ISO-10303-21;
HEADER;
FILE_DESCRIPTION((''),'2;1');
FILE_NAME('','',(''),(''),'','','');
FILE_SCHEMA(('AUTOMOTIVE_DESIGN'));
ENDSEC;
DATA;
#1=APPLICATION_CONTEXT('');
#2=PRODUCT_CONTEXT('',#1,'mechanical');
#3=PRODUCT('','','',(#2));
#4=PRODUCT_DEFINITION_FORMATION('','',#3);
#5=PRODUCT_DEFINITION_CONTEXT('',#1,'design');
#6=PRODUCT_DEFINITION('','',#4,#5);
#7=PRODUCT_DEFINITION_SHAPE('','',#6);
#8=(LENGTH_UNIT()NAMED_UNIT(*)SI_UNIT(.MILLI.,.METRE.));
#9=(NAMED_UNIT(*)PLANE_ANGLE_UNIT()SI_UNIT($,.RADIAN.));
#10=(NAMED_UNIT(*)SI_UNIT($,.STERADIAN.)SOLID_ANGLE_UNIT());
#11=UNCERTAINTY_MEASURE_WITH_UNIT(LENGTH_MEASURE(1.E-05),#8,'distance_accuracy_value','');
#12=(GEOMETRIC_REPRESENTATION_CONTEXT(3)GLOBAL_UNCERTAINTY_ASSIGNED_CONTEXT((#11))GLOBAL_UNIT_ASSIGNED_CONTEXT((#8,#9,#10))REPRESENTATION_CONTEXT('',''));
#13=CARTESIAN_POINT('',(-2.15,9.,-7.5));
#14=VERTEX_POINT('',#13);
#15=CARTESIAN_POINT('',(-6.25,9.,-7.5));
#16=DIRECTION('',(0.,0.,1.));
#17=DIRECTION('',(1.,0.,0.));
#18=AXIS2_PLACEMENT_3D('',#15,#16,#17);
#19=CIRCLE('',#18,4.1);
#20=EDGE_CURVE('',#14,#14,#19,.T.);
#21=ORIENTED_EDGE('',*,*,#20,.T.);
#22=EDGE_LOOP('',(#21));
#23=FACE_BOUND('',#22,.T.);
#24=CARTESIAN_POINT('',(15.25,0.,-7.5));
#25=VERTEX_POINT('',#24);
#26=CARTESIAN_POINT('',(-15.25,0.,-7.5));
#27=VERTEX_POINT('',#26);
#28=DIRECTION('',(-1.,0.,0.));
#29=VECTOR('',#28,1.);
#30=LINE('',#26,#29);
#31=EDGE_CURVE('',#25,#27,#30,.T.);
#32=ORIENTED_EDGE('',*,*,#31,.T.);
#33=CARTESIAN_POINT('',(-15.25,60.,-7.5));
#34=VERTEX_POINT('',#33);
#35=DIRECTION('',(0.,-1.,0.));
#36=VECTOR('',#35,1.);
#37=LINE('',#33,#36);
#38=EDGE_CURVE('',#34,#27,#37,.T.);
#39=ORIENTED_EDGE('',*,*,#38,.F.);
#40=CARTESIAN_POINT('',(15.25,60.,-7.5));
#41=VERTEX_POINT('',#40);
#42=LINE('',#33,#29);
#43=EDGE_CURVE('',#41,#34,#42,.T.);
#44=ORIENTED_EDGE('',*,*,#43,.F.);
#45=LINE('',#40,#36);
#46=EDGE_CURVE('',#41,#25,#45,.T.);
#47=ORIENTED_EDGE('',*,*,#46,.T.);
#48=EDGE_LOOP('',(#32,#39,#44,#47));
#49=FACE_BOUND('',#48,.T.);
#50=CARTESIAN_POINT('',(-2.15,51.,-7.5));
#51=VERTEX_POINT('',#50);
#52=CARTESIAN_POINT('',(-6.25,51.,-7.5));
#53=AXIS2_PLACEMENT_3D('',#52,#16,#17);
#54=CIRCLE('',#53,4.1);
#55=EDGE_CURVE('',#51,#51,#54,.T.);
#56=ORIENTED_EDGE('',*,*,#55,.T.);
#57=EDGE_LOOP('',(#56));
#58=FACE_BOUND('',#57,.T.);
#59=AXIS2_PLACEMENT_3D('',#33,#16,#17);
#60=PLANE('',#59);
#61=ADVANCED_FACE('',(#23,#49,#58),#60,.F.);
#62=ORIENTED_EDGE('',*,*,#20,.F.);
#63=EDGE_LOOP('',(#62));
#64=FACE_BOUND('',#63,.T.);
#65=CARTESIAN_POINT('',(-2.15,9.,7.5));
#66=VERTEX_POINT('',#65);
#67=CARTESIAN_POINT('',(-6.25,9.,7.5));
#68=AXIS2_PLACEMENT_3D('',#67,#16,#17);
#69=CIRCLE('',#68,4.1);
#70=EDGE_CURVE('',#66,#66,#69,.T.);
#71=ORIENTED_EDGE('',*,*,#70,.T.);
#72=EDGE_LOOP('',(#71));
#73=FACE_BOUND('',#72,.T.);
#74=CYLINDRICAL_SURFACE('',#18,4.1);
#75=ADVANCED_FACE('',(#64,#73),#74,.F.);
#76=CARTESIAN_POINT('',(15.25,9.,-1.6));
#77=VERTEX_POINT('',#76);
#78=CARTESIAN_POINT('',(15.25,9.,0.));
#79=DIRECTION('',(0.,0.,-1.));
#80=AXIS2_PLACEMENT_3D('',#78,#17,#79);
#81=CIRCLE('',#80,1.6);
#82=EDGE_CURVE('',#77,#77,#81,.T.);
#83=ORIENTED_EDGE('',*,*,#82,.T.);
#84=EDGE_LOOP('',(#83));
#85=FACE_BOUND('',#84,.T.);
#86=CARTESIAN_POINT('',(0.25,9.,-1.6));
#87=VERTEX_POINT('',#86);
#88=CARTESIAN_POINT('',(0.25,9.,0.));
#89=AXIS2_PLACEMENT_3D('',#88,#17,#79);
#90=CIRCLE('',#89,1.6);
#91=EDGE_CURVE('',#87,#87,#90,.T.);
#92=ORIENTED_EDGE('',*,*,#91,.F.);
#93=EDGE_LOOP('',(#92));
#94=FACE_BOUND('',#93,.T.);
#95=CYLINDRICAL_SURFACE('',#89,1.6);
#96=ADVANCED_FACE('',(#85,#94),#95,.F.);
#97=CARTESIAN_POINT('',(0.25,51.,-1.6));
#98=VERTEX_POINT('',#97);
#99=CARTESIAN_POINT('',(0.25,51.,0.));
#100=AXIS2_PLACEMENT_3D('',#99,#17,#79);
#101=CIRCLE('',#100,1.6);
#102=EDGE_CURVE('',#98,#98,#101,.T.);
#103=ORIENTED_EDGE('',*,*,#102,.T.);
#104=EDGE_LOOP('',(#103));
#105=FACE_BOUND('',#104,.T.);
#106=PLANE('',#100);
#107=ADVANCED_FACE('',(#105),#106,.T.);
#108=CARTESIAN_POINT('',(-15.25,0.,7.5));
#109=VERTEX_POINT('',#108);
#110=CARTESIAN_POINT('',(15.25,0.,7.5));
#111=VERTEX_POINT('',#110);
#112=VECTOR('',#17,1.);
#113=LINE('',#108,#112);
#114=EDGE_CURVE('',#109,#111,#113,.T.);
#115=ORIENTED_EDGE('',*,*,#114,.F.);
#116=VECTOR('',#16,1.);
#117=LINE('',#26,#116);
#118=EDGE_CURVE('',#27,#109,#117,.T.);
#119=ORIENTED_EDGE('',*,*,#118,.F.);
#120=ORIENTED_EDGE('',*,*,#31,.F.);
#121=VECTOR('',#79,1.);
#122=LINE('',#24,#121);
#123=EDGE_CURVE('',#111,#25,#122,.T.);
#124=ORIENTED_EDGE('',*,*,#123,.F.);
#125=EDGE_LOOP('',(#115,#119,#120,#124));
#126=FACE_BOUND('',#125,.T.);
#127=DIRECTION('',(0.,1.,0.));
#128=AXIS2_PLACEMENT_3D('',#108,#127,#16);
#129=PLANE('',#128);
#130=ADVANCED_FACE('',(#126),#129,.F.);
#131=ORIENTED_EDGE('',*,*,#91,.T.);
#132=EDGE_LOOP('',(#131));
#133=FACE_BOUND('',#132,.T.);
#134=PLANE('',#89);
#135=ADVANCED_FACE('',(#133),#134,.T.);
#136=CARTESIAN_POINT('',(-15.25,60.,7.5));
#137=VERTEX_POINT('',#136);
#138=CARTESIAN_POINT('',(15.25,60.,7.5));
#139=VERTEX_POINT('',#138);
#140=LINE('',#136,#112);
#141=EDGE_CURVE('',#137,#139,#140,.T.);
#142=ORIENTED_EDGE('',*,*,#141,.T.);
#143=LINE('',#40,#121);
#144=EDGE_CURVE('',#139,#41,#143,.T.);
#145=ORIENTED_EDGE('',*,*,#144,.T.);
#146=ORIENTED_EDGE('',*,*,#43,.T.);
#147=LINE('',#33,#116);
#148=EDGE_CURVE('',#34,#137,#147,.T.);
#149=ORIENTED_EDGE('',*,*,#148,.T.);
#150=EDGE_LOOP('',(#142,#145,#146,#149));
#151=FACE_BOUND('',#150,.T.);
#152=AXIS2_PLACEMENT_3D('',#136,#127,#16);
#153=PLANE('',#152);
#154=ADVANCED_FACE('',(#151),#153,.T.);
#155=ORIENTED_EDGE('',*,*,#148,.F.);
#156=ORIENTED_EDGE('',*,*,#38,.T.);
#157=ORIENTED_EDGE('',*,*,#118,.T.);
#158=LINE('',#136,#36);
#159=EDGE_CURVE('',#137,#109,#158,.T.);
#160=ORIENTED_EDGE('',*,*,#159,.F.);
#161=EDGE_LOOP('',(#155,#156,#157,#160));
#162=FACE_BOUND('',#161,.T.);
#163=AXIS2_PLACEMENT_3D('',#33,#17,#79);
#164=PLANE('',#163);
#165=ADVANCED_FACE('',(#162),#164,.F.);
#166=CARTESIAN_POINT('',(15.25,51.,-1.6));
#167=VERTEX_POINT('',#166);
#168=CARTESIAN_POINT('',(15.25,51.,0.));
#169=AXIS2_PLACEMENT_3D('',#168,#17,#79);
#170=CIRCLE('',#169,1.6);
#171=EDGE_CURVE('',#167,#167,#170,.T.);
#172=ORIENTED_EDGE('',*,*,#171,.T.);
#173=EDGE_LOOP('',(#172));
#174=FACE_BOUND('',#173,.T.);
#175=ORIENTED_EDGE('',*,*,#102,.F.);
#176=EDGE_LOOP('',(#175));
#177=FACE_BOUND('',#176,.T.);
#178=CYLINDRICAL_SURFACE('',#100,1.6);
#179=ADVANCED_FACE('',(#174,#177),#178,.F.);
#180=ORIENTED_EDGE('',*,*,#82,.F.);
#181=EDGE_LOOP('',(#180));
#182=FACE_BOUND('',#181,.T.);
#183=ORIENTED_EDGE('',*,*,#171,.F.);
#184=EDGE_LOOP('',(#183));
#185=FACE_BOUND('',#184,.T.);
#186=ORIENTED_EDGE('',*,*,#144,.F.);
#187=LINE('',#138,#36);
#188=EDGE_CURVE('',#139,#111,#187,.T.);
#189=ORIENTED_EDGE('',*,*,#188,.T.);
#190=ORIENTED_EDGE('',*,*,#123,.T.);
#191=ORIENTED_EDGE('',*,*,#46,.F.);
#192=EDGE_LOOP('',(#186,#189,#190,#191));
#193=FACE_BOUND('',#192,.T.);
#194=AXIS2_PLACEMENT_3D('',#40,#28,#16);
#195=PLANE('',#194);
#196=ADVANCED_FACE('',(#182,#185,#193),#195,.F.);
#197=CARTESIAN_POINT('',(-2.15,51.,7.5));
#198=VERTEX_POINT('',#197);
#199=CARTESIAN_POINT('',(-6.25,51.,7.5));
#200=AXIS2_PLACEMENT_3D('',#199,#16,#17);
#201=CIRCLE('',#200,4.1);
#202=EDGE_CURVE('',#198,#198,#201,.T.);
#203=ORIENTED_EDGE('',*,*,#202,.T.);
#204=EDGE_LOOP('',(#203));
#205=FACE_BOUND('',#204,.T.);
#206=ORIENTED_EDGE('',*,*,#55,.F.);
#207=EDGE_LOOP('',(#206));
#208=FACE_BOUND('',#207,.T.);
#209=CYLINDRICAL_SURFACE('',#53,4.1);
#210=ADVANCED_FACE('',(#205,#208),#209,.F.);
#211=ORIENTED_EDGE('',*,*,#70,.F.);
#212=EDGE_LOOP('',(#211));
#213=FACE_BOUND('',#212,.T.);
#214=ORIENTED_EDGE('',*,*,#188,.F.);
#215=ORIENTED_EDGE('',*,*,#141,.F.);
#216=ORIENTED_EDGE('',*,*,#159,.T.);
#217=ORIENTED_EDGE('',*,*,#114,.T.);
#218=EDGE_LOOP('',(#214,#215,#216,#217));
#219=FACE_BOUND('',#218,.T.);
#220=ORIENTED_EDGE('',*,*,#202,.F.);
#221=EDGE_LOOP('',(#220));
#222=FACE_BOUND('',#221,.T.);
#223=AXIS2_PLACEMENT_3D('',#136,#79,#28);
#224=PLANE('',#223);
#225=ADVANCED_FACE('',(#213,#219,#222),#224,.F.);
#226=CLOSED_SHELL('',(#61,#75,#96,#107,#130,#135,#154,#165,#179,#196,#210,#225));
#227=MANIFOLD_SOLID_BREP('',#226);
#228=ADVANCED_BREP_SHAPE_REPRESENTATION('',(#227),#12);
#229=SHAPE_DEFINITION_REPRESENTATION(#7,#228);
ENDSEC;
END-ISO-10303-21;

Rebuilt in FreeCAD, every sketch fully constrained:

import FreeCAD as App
import Part
import Sketcher
from FreeCAD import Vector
Q = App.Units.Quantity

doc = App.newDocument("Part")
params = doc.addObject("Spreadsheet::Sheet", "Params")
for row, (alias, value) in enumerate([
    ("sketch1_height", "15 mm"),
    ("sketch1_width", "30.5 mm"),
    ("pad1_length", "60 mm"),
    ("sketch2_diameter", "8.2 mm"),
    ("sketch3_diameter", "3.2 mm"),
    ("pocket2_length", "15 mm"),
], start=1):
    params.set(f"A{row}", alias)
    params.set(f"B{row}", "=" + value)
    params.setAlias(f"B{row}", alias)

body = doc.addObject("PartDesign::Body", "Body")

sketch1 = doc.addObject("Sketcher::SketchObject", "Sketch")
body.addObject(sketch1)
sketch1.AttachmentSupport = (doc.XZ_Plane, [""])
sketch1.MapMode = "FlatFace"
sketch1.addGeometry([
    Part.LineSegment(Vector(-15, -8, 0), Vector(-15, 8, 0)),
    Part.LineSegment(Vector(-15, 8, 0), Vector(15, 8, 0)),
    Part.LineSegment(Vector(15, 8, 0), Vector(15, -8, 0)),
    Part.LineSegment(Vector(15, -8, 0), Vector(-15, -8, 0)),
], False)
sketch1.addConstraint([
    Sketcher.Constraint("Coincident", 0, 2, 1, 1),
    Sketcher.Constraint("Coincident", 1, 2, 2, 1),
    Sketcher.Constraint("Coincident", 2, 2, 3, 1),
    Sketcher.Constraint("Coincident", 3, 2, 0, 1),
    Sketcher.Constraint("Vertical", 0),
    Sketcher.Constraint("Horizontal", 1),
    Sketcher.Constraint("Vertical", 2),
    Sketcher.Constraint("Horizontal", 3),
    Sketcher.Constraint("Symmetric", 0, 2, 2, 2, -1, 1),
    Sketcher.Constraint("DistanceY", 0, 1, 0, 2, Q("15 mm")),
    Sketcher.Constraint("DistanceX", 1, 1, 1, 2, Q("30.5 mm")),
])
sketch1.setExpression("Constraints[9]", "Params.sketch1_height")
sketch1.setExpression("Constraints[10]", "Params.sketch1_width")
pad1 = doc.addObject("PartDesign::Pad", "Pad")
body.addObject(pad1)
pad1.Profile = sketch1
pad1.setExpression("Length", "Params.pad1_length")
pad1.Reversed = True

sketch2 = doc.addObject("Sketcher::SketchObject", "Sketch001")
body.addObject(sketch2)
sketch2.AttachmentSupport = (doc.XY_Plane, [""])
sketch2.MapMode = "FlatFace"
sketch2.AttachmentOffset = App.Placement(Vector(0, 0, 7.5), App.Rotation())
sketch2.addGeometry([
    Part.Circle(Vector(-6.2, 51, 0), Vector(0, 0, 1), 4.1),
    Part.Circle(Vector(-6.2, 9, 0), Vector(0, 0, 1), 4.1),
], False)
sketch2.addConstraint([
    Sketcher.Constraint("Equal", 0, 1),
    Sketcher.Constraint("Vertical", 0, 3, 1, 3),
    Sketcher.Constraint("Diameter", 0, Q("8.2 mm")),
    Sketcher.Constraint("DistanceY", -1, 1, 0, 3, Q("51 mm")),
    Sketcher.Constraint("DistanceY", -1, 1, 1, 3, Q("9 mm")),
    Sketcher.Constraint("DistanceX", 0, 3, -1, 1, Q("6.25 mm")),
])
sketch2.setExpression("Constraints[2]", "Params.sketch2_diameter")
pocket1 = doc.addObject("PartDesign::Pocket", "Pocket")
body.addObject(pocket1)
pocket1.Profile = sketch2
pocket1.Type = "ThroughAll"

sketch3 = doc.addObject("Sketcher::SketchObject", "Sketch002")
body.addObject(sketch3)
sketch3.AttachmentSupport = (doc.YZ_Plane, [""])
sketch3.MapMode = "FlatFace"
sketch3.AttachmentOffset = App.Placement(Vector(0, 0, 15.25), App.Rotation())
sketch3.addGeometry([
    Part.Circle(Vector(51, 0, 0), Vector(0, 0, 1), 1.6),
    Part.Circle(Vector(9, 0, 0), Vector(0, 0, 1), 1.6),
], False)
sketch3.addConstraint([
    Sketcher.Constraint("Equal", 0, 1),
    Sketcher.Constraint("PointOnObject", 0, 3, -1),
    Sketcher.Constraint("PointOnObject", 1, 3, -1),
    Sketcher.Constraint("Diameter", 0, Q("3.2 mm")),
    Sketcher.Constraint("DistanceX", -1, 1, 0, 3, Q("51 mm")),
    Sketcher.Constraint("DistanceX", -1, 1, 1, 3, Q("9 mm")),
])
sketch3.setExpression("Constraints[3]", "Params.sketch3_diameter")
pocket2 = doc.addObject("PartDesign::Pocket", "Pocket001")
body.addObject(pocket2)
pocket2.Profile = sketch3
pocket2.setExpression("Length", "Params.pocket2_length")

doc.recompute()
